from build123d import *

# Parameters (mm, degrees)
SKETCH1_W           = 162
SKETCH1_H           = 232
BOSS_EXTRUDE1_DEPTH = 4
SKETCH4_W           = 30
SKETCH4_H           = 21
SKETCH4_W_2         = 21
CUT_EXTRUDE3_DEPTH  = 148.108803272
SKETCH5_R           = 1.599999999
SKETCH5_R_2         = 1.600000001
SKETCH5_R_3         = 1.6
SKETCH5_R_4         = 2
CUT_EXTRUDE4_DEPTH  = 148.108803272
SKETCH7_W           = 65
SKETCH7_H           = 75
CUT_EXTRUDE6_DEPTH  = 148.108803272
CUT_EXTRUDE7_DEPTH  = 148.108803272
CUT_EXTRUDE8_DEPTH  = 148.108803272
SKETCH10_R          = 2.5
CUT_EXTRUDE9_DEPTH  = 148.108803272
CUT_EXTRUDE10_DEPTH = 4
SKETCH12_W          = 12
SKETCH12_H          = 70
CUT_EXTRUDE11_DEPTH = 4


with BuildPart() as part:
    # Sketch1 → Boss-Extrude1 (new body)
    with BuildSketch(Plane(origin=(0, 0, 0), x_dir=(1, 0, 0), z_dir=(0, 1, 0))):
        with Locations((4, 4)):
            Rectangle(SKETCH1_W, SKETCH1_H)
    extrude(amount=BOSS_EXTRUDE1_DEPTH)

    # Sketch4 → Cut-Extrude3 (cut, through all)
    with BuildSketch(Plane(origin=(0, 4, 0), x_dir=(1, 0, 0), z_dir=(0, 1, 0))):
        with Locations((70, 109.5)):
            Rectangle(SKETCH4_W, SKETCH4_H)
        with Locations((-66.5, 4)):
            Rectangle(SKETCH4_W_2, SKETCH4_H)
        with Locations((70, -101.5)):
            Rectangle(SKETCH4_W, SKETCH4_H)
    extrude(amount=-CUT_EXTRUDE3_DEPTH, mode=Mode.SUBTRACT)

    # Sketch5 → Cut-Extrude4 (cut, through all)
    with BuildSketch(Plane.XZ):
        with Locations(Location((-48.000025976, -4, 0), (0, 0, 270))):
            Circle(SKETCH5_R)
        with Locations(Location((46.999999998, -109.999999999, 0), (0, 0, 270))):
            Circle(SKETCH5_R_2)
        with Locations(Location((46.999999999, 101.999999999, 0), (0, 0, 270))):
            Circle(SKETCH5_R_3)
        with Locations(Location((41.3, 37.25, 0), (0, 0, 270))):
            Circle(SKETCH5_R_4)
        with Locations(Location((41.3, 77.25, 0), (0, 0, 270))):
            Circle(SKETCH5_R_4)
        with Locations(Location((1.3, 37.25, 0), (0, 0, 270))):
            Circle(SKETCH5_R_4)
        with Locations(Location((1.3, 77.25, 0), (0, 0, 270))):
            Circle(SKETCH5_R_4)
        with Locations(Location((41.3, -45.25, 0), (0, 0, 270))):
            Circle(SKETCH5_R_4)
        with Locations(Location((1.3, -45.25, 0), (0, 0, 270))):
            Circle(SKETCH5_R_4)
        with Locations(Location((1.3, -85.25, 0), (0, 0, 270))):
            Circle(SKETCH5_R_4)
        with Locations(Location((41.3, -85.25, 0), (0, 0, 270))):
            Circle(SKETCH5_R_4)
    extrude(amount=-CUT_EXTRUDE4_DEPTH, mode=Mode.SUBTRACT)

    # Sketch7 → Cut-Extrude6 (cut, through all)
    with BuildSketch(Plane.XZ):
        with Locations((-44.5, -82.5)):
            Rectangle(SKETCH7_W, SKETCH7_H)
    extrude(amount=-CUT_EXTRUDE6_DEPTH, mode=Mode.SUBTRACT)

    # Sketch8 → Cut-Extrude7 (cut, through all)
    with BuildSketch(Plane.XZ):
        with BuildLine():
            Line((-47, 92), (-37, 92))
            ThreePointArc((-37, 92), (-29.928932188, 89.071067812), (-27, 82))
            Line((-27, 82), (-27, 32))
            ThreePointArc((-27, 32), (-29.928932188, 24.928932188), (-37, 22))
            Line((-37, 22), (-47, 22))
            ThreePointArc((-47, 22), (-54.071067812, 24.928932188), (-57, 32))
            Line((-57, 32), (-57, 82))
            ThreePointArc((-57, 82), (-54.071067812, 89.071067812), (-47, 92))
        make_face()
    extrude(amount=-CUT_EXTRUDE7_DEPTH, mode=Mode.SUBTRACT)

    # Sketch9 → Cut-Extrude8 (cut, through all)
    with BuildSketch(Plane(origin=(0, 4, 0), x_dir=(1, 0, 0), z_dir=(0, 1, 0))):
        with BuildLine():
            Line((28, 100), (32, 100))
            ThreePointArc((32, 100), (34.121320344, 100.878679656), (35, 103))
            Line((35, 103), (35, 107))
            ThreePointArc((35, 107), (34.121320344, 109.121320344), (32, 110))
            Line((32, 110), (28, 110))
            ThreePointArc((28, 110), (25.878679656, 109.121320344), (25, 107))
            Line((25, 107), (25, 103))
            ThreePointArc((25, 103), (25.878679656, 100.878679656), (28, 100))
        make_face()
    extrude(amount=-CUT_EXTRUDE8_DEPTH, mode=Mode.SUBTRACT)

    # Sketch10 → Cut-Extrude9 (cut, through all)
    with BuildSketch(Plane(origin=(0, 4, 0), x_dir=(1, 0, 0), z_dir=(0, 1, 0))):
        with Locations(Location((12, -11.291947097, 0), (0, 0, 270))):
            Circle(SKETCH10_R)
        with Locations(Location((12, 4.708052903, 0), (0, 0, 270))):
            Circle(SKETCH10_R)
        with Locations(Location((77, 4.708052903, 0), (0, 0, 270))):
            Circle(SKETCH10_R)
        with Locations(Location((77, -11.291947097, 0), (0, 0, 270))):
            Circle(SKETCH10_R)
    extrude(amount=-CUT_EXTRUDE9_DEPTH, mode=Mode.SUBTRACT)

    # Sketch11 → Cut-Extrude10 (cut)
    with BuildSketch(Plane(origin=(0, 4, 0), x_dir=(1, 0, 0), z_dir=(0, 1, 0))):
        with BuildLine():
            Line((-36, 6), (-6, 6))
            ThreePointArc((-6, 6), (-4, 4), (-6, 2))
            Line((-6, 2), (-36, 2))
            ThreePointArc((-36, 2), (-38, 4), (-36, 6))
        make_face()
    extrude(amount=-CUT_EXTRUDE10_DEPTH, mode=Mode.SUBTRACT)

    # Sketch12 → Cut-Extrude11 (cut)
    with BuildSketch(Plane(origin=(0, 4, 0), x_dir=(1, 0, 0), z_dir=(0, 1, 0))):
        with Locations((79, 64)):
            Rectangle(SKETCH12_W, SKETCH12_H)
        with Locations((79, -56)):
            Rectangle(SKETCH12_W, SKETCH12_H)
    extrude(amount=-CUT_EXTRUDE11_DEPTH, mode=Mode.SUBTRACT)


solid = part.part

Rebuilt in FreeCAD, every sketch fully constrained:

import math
import FreeCAD as App
import Part
import Sketcher
from FreeCAD import Vector

doc = App.newDocument("Part")
body = doc.addObject("PartDesign::Body", "Body")

# Sketch on XZ plane
sketch1 = body.newObject("Sketcher::SketchObject", "Sketch")
sketch1.AttachmentSupport = (doc.getObject("XZ_Plane"), [""])
sketch1.MapMode = "FlatFace"
sketch1.addGeometry(Part.LineSegment(Vector(-77, -120, 0), Vector(-77, 112, 0)), False)
sketch1.addGeometry(Part.LineSegment(Vector(-77, 112, 0), Vector(85, 112, 0)), False)
sketch1.addGeometry(Part.LineSegment(Vector(85, 112, 0), Vector(85, -120, 0)), False)
sketch1.addGeometry(Part.LineSegment(Vector(85, -120, 0), Vector(-77, -120, 0)), False)
sketch1.addConstraint(Sketcher.Constraint("Coincident", 0, 2, 1, 1))
sketch1.addConstraint(Sketcher.Constraint("Coincident", 1, 2, 2, 1))
sketch1.addConstraint(Sketcher.Constraint("Coincident", 2, 2, 3, 1))
sketch1.addConstraint(Sketcher.Constraint("Coincident", 3, 2, 0, 1))
sketch1.addConstraint(Sketcher.Constraint("Vertical", 0))
sketch1.addConstraint(Sketcher.Constraint("Horizontal", 1))
sketch1.addConstraint(Sketcher.Constraint("Vertical", 2))
sketch1.addConstraint(Sketcher.Constraint("Horizontal", 3))
sketch1.addConstraint(Sketcher.Constraint("DistanceX", 1, 1, 1, 2, 162.0))
sketch1.addConstraint(Sketcher.Constraint("DistanceY", 0, 1, 0, 2, 232.0))
sketch1.addConstraint(Sketcher.Constraint("DistanceX", 0, 2, -1, 1, 77.0))
sketch1.addConstraint(Sketcher.Constraint("DistanceY", -1, 1, 0, 2, 112.0))
pad1 = body.newObject("PartDesign::Pad", "Pad")
pad1.Profile = sketch1
pad1.Length = 4
pad1.Reversed = True

# Sketch on XZ plane
sketch2 = body.newObject("Sketcher::SketchObject", "Sketch001")
sketch2.AttachmentSupport = (doc.getObject("XZ_Plane"), [""])
sketch2.MapMode = "FlatFace"
sketch2.AttachmentOffset = App.Placement(Vector(0, 0, -4), App.Rotation())
sketch2.addGeometry(Part.LineSegment(Vector(55, -120, 0), Vector(55, -99, 0)), False)
sketch2.addGeometry(Part.LineSegment(Vector(55, -99, 0), Vector(85, -99, 0)), False)
sketch2.addGeometry(Part.LineSegment(Vector(85, -99, 0), Vector(85, -120, 0)), False)
sketch2.addGeometry(Part.LineSegment(Vector(85, -120, 0), Vector(55, -120, 0)), False)
sketch2.addGeometry(Part.LineSegment(Vector(-77, -14, 0), Vector(-77, 6, 0)), False)
sketch2.addGeometry(Part.LineSegment(Vector(-77, 6, 0), Vector(-56, 6, 0)), False)
sketch2.addGeometry(Part.LineSegment(Vector(-56, 6, 0), Vector(-56, -14, 0)), False)
sketch2.addGeometry(Part.LineSegment(Vector(-56, -14, 0), Vector(-77, -14, 0)), False)
sketch2.addGeometry(Part.LineSegment(Vector(55, 91, 0), Vector(55, 112, 0)), False)
sketch2.addGeometry(Part.LineSegment(Vector(55, 112, 0), Vector(85, 112, 0)), False)
sketch2.addGeometry(Part.LineSegment(Vector(85, 112, 0), Vector(85, 91, 0)), False)
sketch2.addGeometry(Part.LineSegment(Vector(85, 91, 0), Vector(55, 91, 0)), False)
sketch2.addConstraint(Sketcher.Constraint("Coincident", 0, 2, 1, 1))
sketch2.addConstraint(Sketcher.Constraint("Coincident", 1, 2, 2, 1))
sketch2.addConstraint(Sketcher.Constraint("Coincident", 2, 2, 3, 1))
sketch2.addConstraint(Sketcher.Constraint("Coincident", 3, 2, 0, 1))
sketch2.addConstraint(Sketcher.Constraint("Coincident", 4, 2, 5, 1))
sketch2.addConstraint(Sketcher.Constraint("Coincident", 5, 2, 6, 1))
sketch2.addConstraint(Sketcher.Constraint("Coincident", 6, 2, 7, 1))
sketch2.addConstraint(Sketcher.Constraint("Coincident", 7, 2, 4, 1))
sketch2.addConstraint(Sketcher.Constraint("Coincident", 8, 2, 9, 1))
sketch2.addConstraint(Sketcher.Constraint("Coincident", 9, 2, 10, 1))
sketch2.addConstraint(Sketcher.Constraint("Coincident", 10, 2, 11, 1))
sketch2.addConstraint(Sketcher.Constraint("Coincident", 11, 2, 8, 1))
sketch2.addConstraint(Sketcher.Constraint("Vertical", 0))
sketch2.addConstraint(Sketcher.Constraint("Horizontal", 1))
sketch2.addConstraint(Sketcher.Constraint("Vertical", 2))
sketch2.addConstraint(Sketcher.Constraint("Horizontal", 3))
sketch2.addConstraint(Sketcher.Constraint("Vertical", 4))
sketch2.addConstraint(Sketcher.Constraint("Horizontal", 5))
sketch2.addConstraint(Sketcher.Constraint("Vertical", 6))
sketch2.addConstraint(Sketcher.Constraint("Horizontal", 7))
sketch2.addConstraint(Sketcher.Constraint("Vertical", 8))
sketch2.addConstraint(Sketcher.Constraint("Horizontal", 9))
sketch2.addConstraint(Sketcher.Constraint("Vertical", 10))
sketch2.addConstraint(Sketcher.Constraint("Horizontal", 11))
sketch2.addConstraint(Sketcher.Constraint("Vertical", 3, 2, 8, 2))
sketch2.addConstraint(Sketcher.Constraint("Vertical", 2, 2, 9, 2))
sketch2.addConstraint(Sketcher.Constraint("Equal", 7, 0))
sketch2.addConstraint(Sketcher.Constraint("Equal", 2, 4))
sketch2.addConstraint(Sketcher.Constraint("Equal", 6, 8))
sketch2.addConstraint(Sketcher.Constraint("DistanceX", 1, 1, 1, 2, 30.0))
sketch2.addConstraint(Sketcher.Constraint("DistanceX", 5, 1, 5, 2, 21.0))
sketch2.addConstraint(Sketcher.Constraint("DistanceX", -1, 1, 0, 2, 55.0))
sketch2.addConstraint(Sketcher.Constraint("DistanceY", 0, 2, -1, 1, 99.0))
sketch2.addConstraint(Sketcher.Constraint("DistanceX", 4, 2, -1, 1, 77.0))
sketch2.addConstraint(Sketcher.Constraint("DistanceY", -1, 1, 8, 2, 112.0))
sketch2.addConstraint(Sketcher.Constraint("DistanceY", -1, 1, 4, 2, 6.5))
pocket1 = body.newObject("PartDesign::Pocket", "Pocket")
pocket1.Profile = sketch2
pocket1.Type = "ThroughAll"
pocket1.Reversed = True

# Sketch on XZ plane
sketch3 = body.newObject("Sketcher::SketchObject", "Sketch002")
sketch3.AttachmentSupport = (doc.getObject("XZ_Plane"), [""])
sketch3.MapMode = "FlatFace"
sketch3.addGeometry(Part.Circle(Vector(-48.000026, -4, 0), Vector(0, 0, 1), 1.6), False)
sketch3.addGeometry(Part.Circle(Vector(47, -110, 0), Vector(0, 0, 1), 1.6), False)
sketch3.addGeometry(Part.Circle(Vector(47, 102, 0), Vector(0, 0, 1), 1.6), False)
sketch3.addGeometry(Part.Circle(Vector(41.3, 37.25, 0), Vector(0, 0, 1), 2), False)
sketch3.addGeometry(Part.Circle(Vector(41.3, 77.25, 0), Vector(0, 0, 1), 2), False)
sketch3.addGeometry(Part.Circle(Vector(1.3, 37.25, 0), Vector(0, 0, 1), 2), False)
sketch3.addGeometry(Part.Circle(Vector(1.3, 77.25, 0), Vector(0, 0, 1), 2), False)
sketch3.addGeometry(Part.Circle(Vector(41.3, -45.25, 0), Vector(0, 0, 1), 2), False)
sketch3.addGeometry(Part.Circle(Vector(1.3, -45.25, 0), Vector(0, 0, 1), 2), False)
sketch3.addGeometry(Part.Circle(Vector(1.3, -85.25, 0), Vector(0, 0, 1), 2), False)
sketch3.addGeometry(Part.Circle(Vector(41.3, -85.25, 0), Vector(0, 0, 1), 2), False)
sketch3.addConstraint(Sketcher.Constraint("Equal", 0, 1))
sketch3.addConstraint(Sketcher.Constraint("Equal", 1, 2))
sketch3.addConstraint(Sketcher.Constraint("Equal", 3, 4))
sketch3.addConstraint(Sketcher.Constraint("Equal", 4, 5))
sketch3.addConstraint(Sketcher.Constraint("Equal", 5, 6))
sketch3.addConstraint(Sketcher.Constraint("Equal", 6, 7))
sketch3.addConstraint(Sketcher.Constraint("Equal", 7, 8))
sketch3.addConstraint(Sketcher.Constraint("Equal", 8, 9))
sketch3.addConstraint(Sketcher.Constraint("Equal", 9, 10))
sketch3.addConstraint(Sketcher.Constraint("Horizontal", 3, 3, 5, 3))
sketch3.addConstraint(Sketcher.Constraint("Horizontal", 4, 3, 6, 3))
sketch3.addConstraint(Sketcher.Constraint("Horizontal", 7, 3, 8, 3))
sketch3.addConstraint(Sketcher.Constraint("Horizontal", 9, 3, 10, 3))
sketch3.addConstraint(Sketcher.Constraint("Vertical", 1, 3, 2, 3))
sketch3.addConstraint(Sketcher.Constraint("Vertical", 3, 3, 4, 3))
sketch3.addConstraint(Sketcher.Constraint("Vertical", 5, 3, 6, 3))
sketch3.addConstraint(Sketcher.Constraint("Vertical", 4, 3, 7, 3))
sketch3.addConstraint(Sketcher.Constraint("Vertical", 6, 3, 8, 3))
sketch3.addConstraint(Sketcher.Constraint("Vertical", 8, 3, 9, 3))
sketch3.addConstraint(Sketcher.Constraint("Vertical", 7, 3, 10, 3))
sketch3.addConstraint(Sketcher.Constraint("Diameter", 3, 4.0))
sketch3.addConstraint(Sketcher.Constraint("Diameter", 0, 3.2))
sketch3.addConstraint(Sketcher.Constraint("DistanceY", 0, 3, -1, 1, 4.0))
sketch3.addConstraint(Sketcher.Constraint("DistanceX", -1, 1, 1, 3, 47.0))
sketch3.addConstraint(Sketcher.Constraint("DistanceY", 1, 3, -1, 1, 110.0))
sketch3.addConstraint(Sketcher.Constraint("DistanceY", -1, 1, 2, 3, 102.0))
sketch3.addConstraint(Sketcher.Constraint("DistanceY", 3, 3, 4, 3, 40.0))
sketch3.addConstraint(Sketcher.Constraint("DistanceX", 5, 3, 3, 3, 40.0))
sketch3.addConstraint(Sketcher.Constraint("DistanceY", 9, 3, 8, 3, 40.0))
sketch3.addConstraint(Sketcher.Constraint("DistanceX", -1, 1, 3, 3, 41.3))
sketch3.addConstraint(Sketcher.Constraint("DistanceY", 7, 3, 3, 3, 82.5))
sketch3.addConstraint(Sketcher.Constraint("DistanceY", -1, 1, 3, 3, 37.25))
sketch3.addConstraint(Sketcher.Constraint("DistanceX", 0, 3, -1, 1, 48.000026))
pocket2 = body.newObject("PartDesign::Pocket", "Pocket001")
pocket2.Profile = sketch3
pocket2.Type = "ThroughAll"

# Sketch on XZ plane
sketch4 = body.newObject("Sketcher::SketchObject", "Sketch003")
sketch4.AttachmentSupport = (doc.getObject("XZ_Plane"), [""])
sketch4.MapMode = "FlatFace"
sketch4.addGeometry(Part.LineSegment(Vector(-77, -45, 0), Vector(-77, -120, 0)), False)
sketch4.addGeometry(Part.LineSegment(Vector(-77, -120, 0), Vector(-12, -120, 0)), False)
sketch4.addGeometry(Part.LineSegment(Vector(-12, -120, 0), Vector(-12, -45, 0)), False)
sketch4.addGeometry(Part.LineSegment(Vector(-12, -45, 0), Vector(-77, -45, 0)), False)
sketch4.addConstraint(Sketcher.Constraint("Coincident", 0, 2, 1, 1))
sketch4.addConstraint(Sketcher.Constraint("Coincident", 1, 2, 2, 1))
sketch4.addConstraint(Sketcher.Constraint("Coincident", 2, 2, 3, 1))
sketch4.addConstraint(Sketcher.Constraint("Coincident", 3, 2, 0, 1))
sketch4.addConstraint(Sketcher.Constraint("Vertical", 0))
sketch4.addConstraint(Sketcher.Constraint("Horizontal", 1))
sketch4.addConstraint(Sketcher.Constraint("Vertical", 2))
sketch4.addConstraint(Sketcher.Constraint("Horizontal", 3))
sketch4.addConstraint(Sketcher.Constraint("DistanceX", 1, 1, 1, 2, 65.0))
sketch4.addConstraint(Sketcher.Constraint("DistanceY", 0, 2, 0, 1, 75.0))
sketch4.addConstraint(Sketcher.Constraint("DistanceX", 0, 2, -1, 1, 77.0))
sketch4.addConstraint(Sketcher.Constraint("DistanceY", 0, 2, -1, 1, 120.0))
pocket3 = body.newObject("PartDesign::Pocket", "Pocket002")
pocket3.Profile = sketch4
pocket3.Type = "ThroughAll"

# Sketch on XZ plane
sketch5 = body.newObject("Sketcher::SketchObject", "Sketch004")
sketch5.AttachmentSupport = (doc.getObject("XZ_Plane"), [""])
sketch5.MapMode = "FlatFace"
sketch5.addGeometry(Part.LineSegment(Vector(-37, 92, 0), Vector(-47, 92, 0)), False)
sketch5.addGeometry(Part.ArcOfCircle(Part.Circle(Vector(-47, 82, 0), Vector(0, 0, 1), 10), math.radians(90), math.radians(180)), False)
sketch5.addGeometry(Part.LineSegment(Vector(-57, 82, 0), Vector(-57, 32, 0)), False)
sketch5.addGeometry(Part.ArcOfCircle(Part.Circle(Vector(-47, 32, 0), Vector(0, 0, 1), 10), math.radians(180), math.radians(270)), False)
sketch5.addGeometry(Part.LineSegment(Vector(-47, 22, 0), Vector(-37, 22, 0)), False)
sketch5.addGeometry(Part.ArcOfCircle(Part.Circle(Vector(-37, 32, 0), Vector(0, 0, 1), 10), math.radians(-90), math.radians(0)), False)
sketch5.addGeometry(Part.LineSegment(Vector(-27, 32, 0), Vector(-27, 82, 0)), False)
sketch5.addGeometry(Part.ArcOfCircle(Part.Circle(Vector(-37, 82, 0), Vector(0, 0, 1), 10), math.radians(0), math.radians(90)), False)
sketch5.addConstraint(Sketcher.Constraint("Tangent", 0, 2, 1, 1))
sketch5.addConstraint(Sketcher.Constraint("Tangent", 1, 2, 2, 1))
sketch5.addConstraint(Sketcher.Constraint("Tangent", 2, 2, 3, 1))
sketch5.addConstraint(Sketcher.Constraint("Tangent", 3, 2, 4, 1))
sketch5.addConstraint(Sketcher.Constraint("Tangent", 4, 2, 5, 1))
sketch5.addConstraint(Sketcher.Constraint("Tangent", 5, 2, 6, 1))
sketch5.addConstraint(Sketcher.Constraint("Tangent", 6, 2, 7, 1))
sketch5.addConstraint(Sketcher.Constraint("Tangent", 7, 2, 0, 1))
sketch5.addConstraint(Sketcher.Constraint("Horizontal", 0))
sketch5.addConstraint(Sketcher.Constraint("Vertical", 2))
sketch5.addConstraint(Sketcher.Constraint("Horizontal", 4))
sketch5.addConstraint(Sketcher.Constraint("Vertical", 6))
sketch5.addConstraint(Sketcher.Constraint("Equal", 1, 3))
sketch5.addConstraint(Sketcher.Constraint("Equal", 3, 5))
sketch5.addConstraint(Sketcher.Constraint("Equal", 5, 7))
sketch5.addConstraint(Sketcher.Constraint("Radius", 1, 10.0))
sketch5.addConstraint(Sketcher.Constraint("DistanceX", 0, 2, 0, 1, 10.0))
sketch5.addConstraint(Sketcher.Constraint("DistanceY", 2, 2, 2, 1, 50.0))
sketch5.addConstraint(Sketcher.Constraint("DistanceX", 1, 3, -1, 1, 47.0))
sketch5.addConstraint(Sketcher.Constraint("DistanceY", -1, 1, 1, 3, 82.0))
pocket4 = body.newObject("PartDesign::Pocket", "Pocket003")
pocket4.Profile = sketch5
pocket4.Type = "ThroughAll"

# Sketch on XZ plane
sketch6 = body.newObject("Sketcher::SketchObject", "Sketch005")
sketch6.AttachmentSupport = (doc.getObject("XZ_Plane"), [""])
sketch6.MapMode = "FlatFace"
sketch6.AttachmentOffset = App.Placement(Vector(0, 0, -4), App.Rotation())
sketch6.addGeometry(Part.LineSegment(Vector(28, -100, 0), Vector(32, -100, 0)), False)
sketch6.addGeometry(Part.ArcOfCircle(Part.Circle(Vector(32, -103, 0), Vector(0, 0, 1), 3), math.radians(0), math.radians(90)), False)
sketch6.addGeometry(Part.LineSegment(Vector(35, -103, 0), Vector(35, -107, 0)), False)
sketch6.addGeometry(Part.ArcOfCircle(Part.Circle(Vector(32, -107, 0), Vector(0, 0, 1), 3), math.radians(-90), math.radians(0)), False)
sketch6.addGeometry(Part.LineSegment(Vector(32, -110, 0), Vector(28, -110, 0)), False)
sketch6.addGeometry(Part.ArcOfCircle(Part.Circle(Vector(28, -107, 0), Vector(0, 0, 1), 3), math.radians(180), math.radians(270)), False)
sketch6.addGeometry(Part.LineSegment(Vector(25, -107, 0), Vector(25, -103, 0)), False)
sketch6.addGeometry(Part.ArcOfCircle(Part.Circle(Vector(28, -103, 0), Vector(0, 0, 1), 3), math.radians(90), math.radians(180)), False)
sketch6.addConstraint(Sketcher.Constraint("Tangent", 0, 2, 1, 2))
sketch6.addConstraint(Sketcher.Constraint("Tangent", 1, 1, 2, 1))
sketch6.addConstraint(Sketcher.Constraint("Tangent", 2, 2, 3, 2))
sketch6.addConstraint(Sketcher.Constraint("Tangent", 3, 1, 4, 1))
sketch6.addConstraint(Sketcher.Constraint("Tangent", 4, 2, 5, 2))
sketch6.addConstraint(Sketcher.Constraint("Tangent", 5, 1, 6, 1))
sketch6.addConstraint(Sketcher.Constraint("Tangent", 6, 2, 7, 2))
sketch6.addConstraint(Sketcher.Constraint("Tangent", 7, 1, 0, 1))
sketch6.addConstraint(Sketcher.Constraint("Horizontal", 0))
sketch6.addConstraint(Sketcher.Constraint("Vertical", 2))
sketch6.addConstraint(Sketcher.Constraint("Horizontal", 4))
sketch6.addConstraint(Sketcher.Constraint("Vertical", 6))
sketch6.addConstraint(Sketcher.Constraint("Equal", 1, 3))
sketch6.addConstraint(Sketcher.Constraint("Equal", 3, 5))
sketch6.addConstraint(Sketcher.Constraint("Equal", 5, 7))
sketch6.addConstraint(Sketcher.Constraint("Equal", 4, 2))
sketch6.addConstraint(Sketcher.Constraint("Radius", 1, 3.0))
sketch6.addConstraint(Sketcher.Constraint("DistanceX", 0, 1, 0, 2, 4.0))
sketch6.addConstraint(Sketcher.Constraint("DistanceX", -1, 1, 1, 3, 32.0))
sketch6.addConstraint(Sketcher.Constraint("DistanceY", 1, 3, -1, 1, 103.0))
pocket5 = body.newObject("PartDesign::Pocket", "Pocket004")
pocket5.Profile = sketch6
pocket5.Type = "ThroughAll"
pocket5.Reversed = True

# Sketch on XZ plane
sketch7 = body.newObject("Sketcher::SketchObject", "Sketch006")
sketch7.AttachmentSupport = (doc.getObject("XZ_Plane"), [""])
sketch7.MapMode = "FlatFace"
sketch7.AttachmentOffset = App.Placement(Vector(0, 0, -4), App.Rotation())
sketch7.addGeometry(Part.Circle(Vector(12, 11.3, 0), Vector(0, 0, 1), 2.5), False)
sketch7.addGeometry(Part.Circle(Vector(12, -4.7, 0), Vector(0, 0, 1), 2.5), False)
sketch7.addGeometry(Part.Circle(Vector(77, -4.7, 0), Vector(0, 0, 1), 2.5), False)
sketch7.addGeometry(Part.Circle(Vector(77, 11.3, 0), Vector(0, 0, 1), 2.5), False)
sketch7.addConstraint(Sketcher.Constraint("Equal", 0, 1))
sketch7.addConstraint(Sketcher.Constraint("Equal", 1, 2))
sketch7.addConstraint(Sketcher.Constraint("Equal", 2, 3))
sketch7.addConstraint(Sketcher.Constraint("Horizontal", 1, 3, 2, 3))
sketch7.addConstraint(Sketcher.Constraint("Horizontal", 0, 3, 3, 3))
sketch7.addConstraint(Sketcher.Constraint("Vertical", 0, 3, 1, 3))
sketch7.addConstraint(Sketcher.Constraint("Vertical", 2, 3, 3, 3))
sketch7.addConstraint(Sketcher.Constraint("Diameter", 0, 5.0))
sketch7.addConstraint(Sketcher.Constraint("DistanceX", -1, 1, 0, 3, 12.0))
sketch7.addConstraint(Sketcher.Constraint("DistanceX", -1, 1, 2, 3, 77.0))
sketch7.addConstraint(Sketcher.Constraint("DistanceY", 1, 3, 0, 3, 16.0))
sketch7.addConstraint(Sketcher.Constraint("DistanceY", -1, 1, 0, 3, 11.291947))
pocket6 = body.newObject("PartDesign::Pocket", "Pocket005")
pocket6.Profile = sketch7
pocket6.Type = "ThroughAll"
pocket6.Reversed = True

# Sketch on XZ plane
sketch8 = body.newObject("Sketcher::SketchObject", "Sketch007")
sketch8.AttachmentSupport = (doc.getObject("XZ_Plane"), [""])
sketch8.MapMode = "FlatFace"
sketch8.AttachmentOffset = App.Placement(Vector(0, 0, -4), App.Rotation())
sketch8.addGeometry(Part.LineSegment(Vector(-6, -6, 0), Vector(-36, -6, 0)), False)
sketch8.addGeometry(Part.ArcOfCircle(Part.Circle(Vector(-36, -4, 0), Vector(0, 0, 1), 2), math.radians(90), math.radians(270)), False)
sketch8.addGeometry(Part.LineSegment(Vector(-36, -2, 0), Vector(-6, -2, 0)), False)
sketch8.addGeometry(Part.ArcOfCircle(Part.Circle(Vector(-6, -4, 0), Vector(0, 0, 1), 2), math.radians(-90), math.radians(90)), False)
sketch8.addConstraint(Sketcher.Constraint("Tangent", 0, 2, 1, 2))
sketch8.addConstraint(Sketcher.Constraint("Tangent", 1, 1, 2, 1))
sketch8.addConstraint(Sketcher.Constraint("Tangent", 2, 2, 3, 2))
sketch8.addConstraint(Sketcher.Constraint("Tangent", 3, 1, 0, 1))
sketch8.addConstraint(Sketcher.Constraint("Horizontal", 0))
sketch8.addConstraint(Sketcher.Constraint("Horizontal", 2))
sketch8.addConstraint(Sketcher.Constraint("Radius", 1, 2.0))
sketch8.addConstraint(Sketcher.Constraint("DistanceX", 0, 2, 0, 1, 30.0))
sketch8.addConstraint(Sketcher.Constraint("DistanceX", 1, 3, -1, 1, 36.0))
sketch8.addConstraint(Sketcher.Constraint("DistanceY", 1, 3, -1, 1, 4.0))
pocket7 = body.newObject("PartDesign::Pocket", "Pocket006")
pocket7.Profile = sketch8
pocket7.Length = 4
pocket7.Reversed = True

# Sketch on XZ plane
sketch9 = body.newObject("Sketcher::SketchObject", "Sketch008")
sketch9.AttachmentSupport = (doc.getObject("XZ_Plane"), [""])
sketch9.MapMode = "FlatFace"
sketch9.AttachmentOffset = App.Placement(Vector(0, 0, -4), App.Rotation())
sketch9.addGeometry(Part.LineSegment(Vector(73, -99, 0), Vector(73, -29, 0)), False)
sketch9.addGeometry(Part.LineSegment(Vector(73, -29, 0), Vector(85, -29, 0)), False)
sketch9.addGeometry(Part.LineSegment(Vector(85, -29, 0), Vector(85, -99, 0)), False)
sketch9.addGeometry(Part.LineSegment(Vector(85, -99, 0), Vector(73, -99, 0)), False)
sketch9.addGeometry(Part.LineSegment(Vector(73, 21, 0), Vector(73, 91, 0)), False)
sketch9.addGeometry(Part.LineSegment(Vector(73, 91, 0), Vector(85, 91, 0)), False)
sketch9.addGeometry(Part.LineSegment(Vector(85, 91, 0), Vector(85, 21, 0)), False)
sketch9.addGeometry(Part.LineSegment(Vector(85, 21, 0), Vector(73, 21, 0)), False)
sketch9.addConstraint(Sketcher.Constraint("Coincident", 0, 2, 1, 1))
sketch9.addConstraint(Sketcher.Constraint("Coincident", 1, 2, 2, 1))
sketch9.addConstraint(Sketcher.Constraint("Coincident", 2, 2, 3, 1))
sketch9.addConstraint(Sketcher.Constraint("Coincident", 3, 2, 0, 1))
sketch9.addConstraint(Sketcher.Constraint("Coincident", 4, 2, 5, 1))
sketch9.addConstraint(Sketcher.Constraint("Coincident", 5, 2, 6, 1))
sketch9.addConstraint(Sketcher.Constraint("Coincident", 6, 2, 7, 1))
sketch9.addConstraint(Sketcher.Constraint("Coincident", 7, 2, 4, 1))
sketch9.addConstraint(Sketcher.Constraint("Vertical", 0))
sketch9.addConstraint(Sketcher.Constraint("Horizontal", 1))
sketch9.addConstraint(Sketcher.Constraint("Vertical", 2))
sketch9.addConstraint(Sketcher.Constraint("Horizontal", 3))
sketch9.addConstraint(Sketcher.Constraint("Vertical", 4))
sketch9.addConstraint(Sketcher.Constraint("Horizontal", 5))
sketch9.addConstraint(Sketcher.Constraint("Vertical", 6))
sketch9.addConstraint(Sketcher.Constraint("Horizontal", 7))
sketch9.addConstraint(Sketcher.Constraint("Vertical", 3, 2, 4, 2))
sketch9.addConstraint(Sketcher.Constraint("Vertical", 2, 2, 5, 2))
sketch9.addConstraint(Sketcher.Constraint("Equal", 2, 4))
sketch9.addConstraint(Sketcher.Constraint("DistanceX", 1, 1, 1, 2, 12.0))
sketch9.addConstraint(Sketcher.Constraint("DistanceY", 0, 1, 0, 2, 70.0))
sketch9.addConstraint(Sketcher.Constraint("DistanceX", -1, 1, 0, 2, 73.0))
sketch9.addConstraint(Sketcher.Constraint("DistanceY", 0, 2, -1, 1, 29.0))
sketch9.addConstraint(Sketcher.Constraint("DistanceY", -1, 1, 4, 2, 91.0))
pocket8 = body.newObject("PartDesign::Pocket", "Pocket007")
pocket8.Profile = sketch9
pocket8.Length = 4
pocket8.Reversed = True

doc.recompute()
